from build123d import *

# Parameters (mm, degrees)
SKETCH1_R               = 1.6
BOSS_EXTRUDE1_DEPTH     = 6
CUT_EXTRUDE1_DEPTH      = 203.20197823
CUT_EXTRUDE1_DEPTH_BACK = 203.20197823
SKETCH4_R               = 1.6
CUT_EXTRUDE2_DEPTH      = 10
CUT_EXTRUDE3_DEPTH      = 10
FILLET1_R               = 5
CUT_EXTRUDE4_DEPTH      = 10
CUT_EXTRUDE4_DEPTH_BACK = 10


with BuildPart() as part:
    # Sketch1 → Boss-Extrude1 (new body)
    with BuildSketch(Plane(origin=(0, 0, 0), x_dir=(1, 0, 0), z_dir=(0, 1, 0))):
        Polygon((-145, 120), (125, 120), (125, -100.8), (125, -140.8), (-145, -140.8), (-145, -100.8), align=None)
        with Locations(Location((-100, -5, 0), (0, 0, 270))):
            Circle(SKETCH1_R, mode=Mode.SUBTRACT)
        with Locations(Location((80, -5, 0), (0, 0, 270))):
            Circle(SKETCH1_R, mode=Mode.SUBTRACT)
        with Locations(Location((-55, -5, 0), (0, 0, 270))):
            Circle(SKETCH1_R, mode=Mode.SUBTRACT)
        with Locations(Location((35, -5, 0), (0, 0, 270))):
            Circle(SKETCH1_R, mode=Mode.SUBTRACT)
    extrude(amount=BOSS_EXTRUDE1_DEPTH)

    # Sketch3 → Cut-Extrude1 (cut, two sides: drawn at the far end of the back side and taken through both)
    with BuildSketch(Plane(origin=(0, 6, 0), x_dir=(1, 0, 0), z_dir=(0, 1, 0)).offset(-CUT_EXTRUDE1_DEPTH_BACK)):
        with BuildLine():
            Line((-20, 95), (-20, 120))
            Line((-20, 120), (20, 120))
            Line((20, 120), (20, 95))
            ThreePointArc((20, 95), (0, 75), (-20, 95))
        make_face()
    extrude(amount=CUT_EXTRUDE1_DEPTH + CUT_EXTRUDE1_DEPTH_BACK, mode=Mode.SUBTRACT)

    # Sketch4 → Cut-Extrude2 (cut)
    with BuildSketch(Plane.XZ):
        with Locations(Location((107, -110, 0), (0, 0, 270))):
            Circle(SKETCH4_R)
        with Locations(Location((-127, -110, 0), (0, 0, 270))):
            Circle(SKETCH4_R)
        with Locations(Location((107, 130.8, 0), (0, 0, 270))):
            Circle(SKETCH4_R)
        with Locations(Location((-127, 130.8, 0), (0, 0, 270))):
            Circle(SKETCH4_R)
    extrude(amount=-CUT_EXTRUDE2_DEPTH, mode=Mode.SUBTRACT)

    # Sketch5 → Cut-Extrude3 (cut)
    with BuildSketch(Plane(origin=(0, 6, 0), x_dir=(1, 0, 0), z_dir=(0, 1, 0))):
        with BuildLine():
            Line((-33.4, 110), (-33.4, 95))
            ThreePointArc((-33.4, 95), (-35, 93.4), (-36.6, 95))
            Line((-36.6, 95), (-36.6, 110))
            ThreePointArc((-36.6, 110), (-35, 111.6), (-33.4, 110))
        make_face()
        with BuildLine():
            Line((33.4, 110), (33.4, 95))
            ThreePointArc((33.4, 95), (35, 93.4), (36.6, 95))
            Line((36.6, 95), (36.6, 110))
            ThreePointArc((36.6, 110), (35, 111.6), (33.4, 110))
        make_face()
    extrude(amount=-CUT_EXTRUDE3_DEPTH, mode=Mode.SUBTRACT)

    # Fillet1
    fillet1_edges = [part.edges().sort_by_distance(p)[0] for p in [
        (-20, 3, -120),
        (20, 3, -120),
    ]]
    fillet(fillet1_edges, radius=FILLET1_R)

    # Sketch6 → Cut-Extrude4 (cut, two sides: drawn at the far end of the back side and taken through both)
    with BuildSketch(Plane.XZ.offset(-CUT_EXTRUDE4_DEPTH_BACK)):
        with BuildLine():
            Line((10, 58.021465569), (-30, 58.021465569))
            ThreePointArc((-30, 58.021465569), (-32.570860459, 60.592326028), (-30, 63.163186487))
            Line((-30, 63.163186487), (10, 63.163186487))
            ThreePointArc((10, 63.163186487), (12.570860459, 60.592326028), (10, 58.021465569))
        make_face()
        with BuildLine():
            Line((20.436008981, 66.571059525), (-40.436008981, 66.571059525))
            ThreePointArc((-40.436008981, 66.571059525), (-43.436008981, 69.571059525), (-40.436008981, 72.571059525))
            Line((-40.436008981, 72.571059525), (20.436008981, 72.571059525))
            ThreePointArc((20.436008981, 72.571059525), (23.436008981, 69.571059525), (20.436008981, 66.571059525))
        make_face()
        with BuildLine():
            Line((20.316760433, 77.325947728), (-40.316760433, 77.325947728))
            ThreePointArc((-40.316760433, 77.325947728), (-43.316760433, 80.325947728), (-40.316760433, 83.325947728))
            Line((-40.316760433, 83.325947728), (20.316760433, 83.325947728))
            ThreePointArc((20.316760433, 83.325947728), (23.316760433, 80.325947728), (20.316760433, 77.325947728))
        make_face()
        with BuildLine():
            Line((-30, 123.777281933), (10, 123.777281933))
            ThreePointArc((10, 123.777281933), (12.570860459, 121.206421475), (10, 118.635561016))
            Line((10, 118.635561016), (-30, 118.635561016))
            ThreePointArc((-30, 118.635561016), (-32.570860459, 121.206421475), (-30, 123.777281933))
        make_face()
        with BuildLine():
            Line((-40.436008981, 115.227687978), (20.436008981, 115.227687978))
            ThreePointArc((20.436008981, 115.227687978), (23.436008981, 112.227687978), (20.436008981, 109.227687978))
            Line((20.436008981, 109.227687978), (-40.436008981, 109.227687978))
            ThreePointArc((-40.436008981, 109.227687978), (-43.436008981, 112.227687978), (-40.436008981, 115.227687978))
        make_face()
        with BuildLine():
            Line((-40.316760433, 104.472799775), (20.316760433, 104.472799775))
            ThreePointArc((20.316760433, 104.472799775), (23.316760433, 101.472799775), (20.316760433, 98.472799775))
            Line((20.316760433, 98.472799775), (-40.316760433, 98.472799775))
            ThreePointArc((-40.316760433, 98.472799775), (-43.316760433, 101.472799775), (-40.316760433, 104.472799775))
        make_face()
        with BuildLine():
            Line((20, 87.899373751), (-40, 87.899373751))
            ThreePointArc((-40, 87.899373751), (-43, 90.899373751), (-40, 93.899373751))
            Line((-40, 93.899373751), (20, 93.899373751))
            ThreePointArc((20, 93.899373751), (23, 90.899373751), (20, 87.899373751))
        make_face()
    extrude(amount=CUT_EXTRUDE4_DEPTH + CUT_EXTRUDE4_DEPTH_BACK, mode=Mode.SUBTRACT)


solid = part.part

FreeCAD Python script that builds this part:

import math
import FreeCAD as App
import Part
import Sketcher

V = App.Vector


def edges_at(feature, points):
    """Names of the edges that pass closest to the given points."""
    edges = feature.Shape.Edges
    near = lambda p: min(range(len(edges)), key=lambda i: edges[i].distToShape(Part.Vertex(*p))[0])
    return sorted({f"Edge{near(p) + 1}" for p in points})


def add_polygon(sketch, points):
    """Adds a closed chain of lines whose ends are joined by coincident constraints."""
    first, n = sketch.GeometryCount, len(points)
    for a, b in zip(points, points[1:] + points[:1]):
        sketch.addGeometry(Part.LineSegment(App.Vector(*a, 0), App.Vector(*b, 0)), False)
    for i in range(n):
        sketch.addConstraint(Sketcher.Constraint("Coincident", first + i, 2, first + (i + 1) % n, 1))

doc = App.newDocument("Part")
body = doc.addObject("PartDesign::Body", "Body")

sketch1 = body.newObject("Sketcher::SketchObject", "Sketch")
sketch1.AttachmentSupport = (doc.getObject("XZ_Plane"), [""])
sketch1.MapMode = "FlatFace"
add_polygon(sketch1, [(125, -120), (-145, -120), (-145, 140.8), (125, 140.8)])
sketch1.addGeometry(Part.Circle(V(80, 5, 0), V(0, 0, 1), 1.6), False)
sketch1.addGeometry(Part.Circle(V(35, 5, 0), V(0, 0, 1), 1.6), False)
sketch1.addGeometry(Part.Circle(V(-55, 5, 0), V(0, 0, 1), 1.6), False)
sketch1.addGeometry(Part.Circle(V(-100, 5, 0), V(0, 0, 1), 1.6), False)
sketch1.addConstraint([
    Sketcher.Constraint("Horizontal", 0),
    Sketcher.Constraint("Vertical", 1),
    Sketcher.Constraint("Horizontal", 2),
    Sketcher.Constraint("Vertical", 3),
    Sketcher.Constraint("Equal", 4, 5),
    Sketcher.Constraint("Equal", 5, 6),
    Sketcher.Constraint("Equal", 6, 7),
    Sketcher.Constraint("Horizontal", 4, 3, 5, 3),
    Sketcher.Constraint("Horizontal", 5, 3, 6, 3),
    Sketcher.Constraint("Horizontal", 6, 3, 7, 3),
    Sketcher.Constraint("Diameter", 4, 3.2),
    Sketcher.Constraint("DistanceX", 0, 2, 0, 1, 270.0),
    Sketcher.Constraint("DistanceY", 1, 1, 1, 2, 260.8),
    Sketcher.Constraint("DistanceX", -1, 1, 4, 3, 80.0),
    Sketcher.Constraint("DistanceY", -1, 1, 4, 3, 5.0),
    Sketcher.Constraint("DistanceX", -1, 1, 5, 3, 35.0),
    Sketcher.Constraint("DistanceX", 6, 3, -1, 1, 55.0),
    Sketcher.Constraint("DistanceX", 7, 3, -1, 1, 100.0),
    Sketcher.Constraint("DistanceX", 0, 2, -1, 1, 145.0),
    Sketcher.Constraint("DistanceY", 0, 2, -1, 1, 120.0),
])
pad1 = body.newObject("PartDesign::Pad", "Pad")
pad1.Profile = sketch1
pad1.Length = 6
pad1.Reversed = True

sketch2 = body.newObject("Sketcher::SketchObject", "Sketch001")
sketch2.AttachmentSupport = (doc.getObject("XZ_Plane"), [""])
sketch2.MapMode = "FlatFace"
sketch2.AttachmentOffset = App.Placement(V(0, 0, -6), App.Rotation())
sketch2.addGeometry([
    Part.LineSegment(V(-20, -120, 0), V(-20, -95, 0)),
    Part.ArcOfCircle(Part.Circle(V(0, -95, 0), V(0, 0, 1), 20), math.radians(0), math.radians(180)),
    Part.LineSegment(V(20, -95, 0), V(20, -120, 0)),
    Part.LineSegment(V(20, -120, 0), V(-20, -120, 0)),
], False)
sketch2.addConstraint([
    Sketcher.Constraint("Tangent", 0, 2, 1, 2),
    Sketcher.Constraint("Tangent", 1, 1, 2, 1),
    Sketcher.Constraint("Coincident", 2, 2, 3, 1),
    Sketcher.Constraint("Coincident", 3, 2, 0, 1),
    Sketcher.Constraint("Vertical", 0),
    Sketcher.Constraint("Vertical", 2),
    Sketcher.Constraint("Horizontal", 3),
    Sketcher.Constraint("PointOnObject", 1, 3, -2),
    Sketcher.Constraint("Radius", 1, 20.0),
    Sketcher.Constraint("DistanceY", 0, 1, 0, 2, 25.0),
    Sketcher.Constraint("DistanceY", 1, 3, -1, 1, 95.0),
])
pocket1 = body.newObject("PartDesign::Pocket", "Pocket")
pocket1.Profile = sketch2
pocket1.Type = "ThroughAll"
pocket1.Midplane = True

sketch3 = body.newObject("Sketcher::SketchObject", "Sketch002")
sketch3.AttachmentSupport = (doc.getObject("XZ_Plane"), [""])
sketch3.MapMode = "FlatFace"
sketch3.addGeometry([
    Part.Circle(V(107, -110, 0), V(0, 0, 1), 1.6),
    Part.Circle(V(-127, -110, 0), V(0, 0, 1), 1.6),
    Part.Circle(V(107, 130.8, 0), V(0, 0, 1), 1.6),
    Part.Circle(V(-127, 130.8, 0), V(0, 0, 1), 1.6),
], False)
sketch3.addConstraint([
    Sketcher.Constraint("Equal", 0, 1),
    Sketcher.Constraint("Equal", 1, 2),
    Sketcher.Constraint("Equal", 2, 3),
    Sketcher.Constraint("Horizontal", 0, 3, 1, 3),
    Sketcher.Constraint("Horizontal", 2, 3, 3, 3),
    Sketcher.Constraint("Vertical", 0, 3, 2, 3),
    Sketcher.Constraint("Vertical", 1, 3, 3, 3),
    Sketcher.Constraint("Diameter", 0, 3.2),
    Sketcher.Constraint("DistanceX", -1, 1, 0, 3, 107.0),
    Sketcher.Constraint("DistanceY", 0, 3, -1, 1, 110.0),
    Sketcher.Constraint("DistanceX", 1, 3, -1, 1, 127.0),
    Sketcher.Constraint("DistanceY", -1, 1, 2, 3, 130.8),
])
pocket2 = body.newObject("PartDesign::Pocket", "Pocket001")
pocket2.Profile = sketch3
pocket2.Length = 10

sketch4 = body.newObject("Sketcher::SketchObject", "Sketch003")
sketch4.AttachmentSupport = (doc.getObject("XZ_Plane"), [""])
sketch4.MapMode = "FlatFace"
sketch4.AttachmentOffset = App.Placement(V(0, 0, -6), App.Rotation())
sketch4.addGeometry([
    Part.LineSegment(V(-33.4, -95, 0), V(-33.4, -110, 0)),
    Part.ArcOfCircle(Part.Circle(V(-35, -110, 0), V(0, 0, 1), 1.6), math.radians(180), math.radians(360)),
    Part.LineSegment(V(-36.6, -110, 0), V(-36.6, -95, 0)),
    Part.ArcOfCircle(Part.Circle(V(-35, -95, 0), V(0, 0, 1), 1.6), math.radians(0), math.radians(180)),
    Part.LineSegment(V(33.4, -110, 0), V(33.4, -95, 0)),
    Part.ArcOfCircle(Part.Circle(V(35, -95, 0), V(0, 0, 1), 1.6), math.radians(0), math.radians(180)),
    Part.LineSegment(V(36.6, -95, 0), V(36.6, -110, 0)),
    Part.ArcOfCircle(Part.Circle(V(35, -110, 0), V(0, 0, 1), 1.6), math.radians(180), math.radians(360)),
], False)
sketch4.addConstraint([
    Sketcher.Constraint("Tangent", 0, 2, 1, 2),
    Sketcher.Constraint("Tangent", 1, 1, 2, 1),
    Sketcher.Constraint("Tangent", 2, 2, 3, 2),
    Sketcher.Constraint("Tangent", 3, 1, 0, 1),
    Sketcher.Constraint("Tangent", 4, 2, 5, 2),
    Sketcher.Constraint("Tangent", 5, 1, 6, 1),
    Sketcher.Constraint("Tangent", 6, 2, 7, 2),
    Sketcher.Constraint("Tangent", 7, 1, 4, 1),
    Sketcher.Constraint("Vertical", 0),
    Sketcher.Constraint("Vertical", 2),
    Sketcher.Constraint("Vertical", 4),
    Sketcher.Constraint("Vertical", 6),
    Sketcher.Constraint("Equal", 3, 5),
    Sketcher.Constraint("Symmetric", 3, 3, 5, 3, -2),
    Sketcher.Constraint("Horizontal", 1, 3, 7, 3),
    Sketcher.Constraint("Radius", 1, 1.6),
    Sketcher.Constraint("DistanceY", 0, 2, 0, 1, 15.0),
    Sketcher.Constraint("DistanceX", 1, 3, -1, 1, 35.0),
    Sketcher.Constraint("DistanceY", 1, 3, -1, 1, 110.0),
])
pocket3 = body.newObject("PartDesign::Pocket", "Pocket002")
pocket3.Profile = sketch4
pocket3.Length = 10
pocket3.Reversed = True
doc.recompute()

fillet = body.newObject("PartDesign::Fillet", "Fillet")
fillet.Base = (pocket3, edges_at(pocket3, [(-20, 3, -120), (20, 3, -120)]))
fillet.Radius = 5

sketch5 = body.newObject("Sketcher::SketchObject", "Sketch004")
sketch5.AttachmentSupport = (doc.getObject("XZ_Plane"), [""])
sketch5.MapMode = "FlatFace"
sketch5.addGeometry([
    Part.LineSegment(V(-30, 58, 0), V(10, 58, 0)),
    Part.ArcOfCircle(Part.Circle(V(10, 60.6, 0), V(0, 0, 1), 2.6), math.radians(-90), math.radians(90)),
    Part.LineSegment(V(10, 63.2, 0), V(-30, 63.2, 0)),
    Part.ArcOfCircle(Part.Circle(V(-30, 60.6, 0), V(0, 0, 1), 2.6), math.radians(90), math.radians(270)),
    Part.LineSegment(V(-40.4, 66.6, 0), V(20.4, 66.6, 0)),
    Part.ArcOfCircle(Part.Circle(V(20.4, 69.6, 0), V(0, 0, 1), 3), math.radians(-90), math.radians(90)),
    Part.LineSegment(V(20.4, 72.6, 0), V(-40.4, 72.6, 0)),
    Part.ArcOfCircle(Part.Circle(V(-40.4, 69.6, 0), V(0, 0, 1), 3), math.radians(90), math.radians(270)),
    Part.LineSegment(V(-40.3, 77.3, 0), V(20.3, 77.3, 0)),
    Part.ArcOfCircle(Part.Circle(V(20.3, 80.3, 0), V(0, 0, 1), 3), math.radians(-90), math.radians(90)),
    Part.LineSegment(V(20.3, 83.3, 0), V(-40.3, 83.3, 0)),
    Part.ArcOfCircle(Part.Circle(V(-40.3, 80.3, 0), V(0, 0, 1), 3), math.radians(90), math.radians(270)),
    Part.LineSegment(V(10, 123.8, 0), V(-30, 123.8, 0)),
    Part.ArcOfCircle(Part.Circle(V(-30, 121.2, 0), V(0, 0, 1), 2.6), math.radians(90), math.radians(270)),
    Part.LineSegment(V(-30, 118.6, 0), V(10, 118.6, 0)),
    Part.ArcOfCircle(Part.Circle(V(10, 121.2, 0), V(0, 0, 1), 2.6), math.radians(-90), math.radians(90)),
    Part.LineSegment(V(20.4, 115.2, 0), V(-40.4, 115.2, 0)),
    Part.ArcOfCircle(Part.Circle(V(-40.4, 112.2, 0), V(0, 0, 1), 3), math.radians(90), math.radians(270)),
    Part.LineSegment(V(-40.4, 109.2, 0), V(20.4, 109.2, 0)),
    Part.ArcOfCircle(Part.Circle(V(20.4, 112.2, 0), V(0, 0, 1), 3), math.radians(-90), math.radians(90)),
    Part.LineSegment(V(20.3, 104.5, 0), V(-40.3, 104.5, 0)),
    Part.ArcOfCircle(Part.Circle(V(-40.3, 101.5, 0), V(0, 0, 1), 3), math.radians(90), math.radians(270)),
    Part.LineSegment(V(-40.3, 98.5, 0), V(20.3, 98.5, 0)),
    Part.ArcOfCircle(Part.Circle(V(20.3, 101.5, 0), V(0, 0, 1), 3), math.radians(-90), math.radians(90)),
    Part.LineSegment(V(-40, 87.9, 0), V(20, 87.9, 0)),
    Part.ArcOfCircle(Part.Circle(V(20, 90.9, 0), V(0, 0, 1), 3), math.radians(-90), math.radians(90)),
    Part.LineSegment(V(20, 93.9, 0), V(-40, 93.9, 0)),
    Part.ArcOfCircle(Part.Circle(V(-40, 90.9, 0), V(0, 0, 1), 3), math.radians(90), math.radians(270)),
], False)
sketch5.addConstraint([
    Sketcher.Constraint("Tangent", 0, 2, 1, 1),
    Sketcher.Constraint("Tangent", 1, 2, 2, 1),
    Sketcher.Constraint("Tangent", 2, 2, 3, 1),
    Sketcher.Constraint("Tangent", 3, 2, 0, 1),
    Sketcher.Constraint("Tangent", 4, 2, 5, 1),
    Sketcher.Constraint("Tangent", 5, 2, 6, 1),
    Sketcher.Constraint("Tangent", 6, 2, 7, 1),
    Sketcher.Constraint("Tangent", 7, 2, 4, 1),
    Sketcher.Constraint("Tangent", 8, 2, 9, 1),
    Sketcher.Constraint("Tangent", 9, 2, 10, 1),
    Sketcher.Constraint("Tangent", 10, 2, 11, 1),
    Sketcher.Constraint("Tangent", 11, 2, 8, 1),
    Sketcher.Constraint("Tangent", 12, 2, 13, 1),
    Sketcher.Constraint("Tangent", 13, 2, 14, 1),
    Sketcher.Constraint("Tangent", 14, 2, 15, 1),
    Sketcher.Constraint("Tangent", 15, 2, 12, 1),
    Sketcher.Constraint("Tangent", 16, 2, 17, 1),
    Sketcher.Constraint("Tangent", 17, 2, 18, 1),
    Sketcher.Constraint("Tangent", 18, 2, 19, 1),
    Sketcher.Constraint("Tangent", 19, 2, 16, 1),
    Sketcher.Constraint("Tangent", 20, 2, 21, 1),
    Sketcher.Constraint("Tangent", 21, 2, 22, 1),
    Sketcher.Constraint("Tangent", 22, 2, 23, 1),
    Sketcher.Constraint("Tangent", 23, 2, 20, 1),
    Sketcher.Constraint("Tangent", 24, 2, 25, 1),
    Sketcher.Constraint("Tangent", 25, 2, 26, 1),
    Sketcher.Constraint("Tangent", 26, 2, 27, 1),
    Sketcher.Constraint("Tangent", 27, 2, 24, 1),
    Sketcher.Constraint("Horizontal", 0),
    Sketcher.Constraint("Horizontal", 2),
    Sketcher.Constraint("Horizontal", 4),
    Sketcher.Constraint("Horizontal", 6),
    Sketcher.Constraint("Horizontal", 8),
    Sketcher.Constraint("Horizontal", 10),
    Sketcher.Constraint("Horizontal", 12),
    Sketcher.Constraint("Horizontal", 14),
    Sketcher.Constraint("Horizontal", 16),
    Sketcher.Constraint("Horizontal", 18),
    Sketcher.Constraint("Horizontal", 20),
    Sketcher.Constraint("Horizontal", 22),
    Sketcher.Constraint("Horizontal", 24),
    Sketcher.Constraint("Horizontal", 26),
    Sketcher.Constraint("Equal", 7, 9),
    Sketcher.Constraint("Equal", 3, 13),
    Sketcher.Constraint("Equal", 11, 17),
    Sketcher.Constraint("Equal", 19, 21),
    Sketcher.Constraint("Equal", 23, 25),
    Sketcher.Constraint("Vertical", 3, 3, 13, 3),
    Sketcher.Constraint("Vertical", 1, 3, 15, 3),
    Sketcher.Constraint("Vertical", 7, 3, 17, 3),
    Sketcher.Constraint("Vertical", 5, 3, 19, 3),
    Sketcher.Constraint("Vertical", 11, 3, 21, 3),
    Sketcher.Constraint("Vertical", 9, 3, 23, 3),
    Sketcher.Constraint("Radius", 5, 3.0),
    Sketcher.Constraint("DistanceX", 0, 1, 0, 2, 40.0),
    Sketcher.Constraint("DistanceX", 24, 1, 24, 2, 60.0),
    Sketcher.Constraint("DistanceX", -1, 1, 1, 3, 10.0),
    Sketcher.Constraint("DistanceX", -1, 1, 25, 3, 20.0),
    Sketcher.Constraint("Radius", 1, 2.57086),
    Sketcher.Constraint("DistanceX", 8, 1, 8, 2, 60.633521),
    Sketcher.Constraint("DistanceY", -1, 1, 21, 3, 101.4728),
    Sketcher.Constraint("DistanceX", 4, 1, 4, 2, 60.872018),
    Sketcher.Constraint("DistanceX", -1, 1, 5, 3, 20.436009),
    Sketcher.Constraint("DistanceY", -1, 1, 5, 3, 69.57106),
    Sketcher.Constraint("DistanceX", -1, 1, 9, 3, 20.31676),
    Sketcher.Constraint("DistanceY", -1, 1, 13, 3, 121.206421),
    Sketcher.Constraint("DistanceY", 5, 3, 9, 3, 10.754888),
    Sketcher.Constraint("DistanceY", 1, 3, 9, 3, 19.733622),
    Sketcher.Constraint("DistanceY", 11, 3, 17, 3, 31.90174),
    Sketcher.Constraint("DistanceY", 0, 2, 25, 3, 32.877908),
])
pocket4 = body.newObject("PartDesign::Pocket", "Pocket003")
pocket4.Profile = sketch5
pocket4.Type = "ThroughAll"
pocket4.Midplane = True

doc.recompute()
